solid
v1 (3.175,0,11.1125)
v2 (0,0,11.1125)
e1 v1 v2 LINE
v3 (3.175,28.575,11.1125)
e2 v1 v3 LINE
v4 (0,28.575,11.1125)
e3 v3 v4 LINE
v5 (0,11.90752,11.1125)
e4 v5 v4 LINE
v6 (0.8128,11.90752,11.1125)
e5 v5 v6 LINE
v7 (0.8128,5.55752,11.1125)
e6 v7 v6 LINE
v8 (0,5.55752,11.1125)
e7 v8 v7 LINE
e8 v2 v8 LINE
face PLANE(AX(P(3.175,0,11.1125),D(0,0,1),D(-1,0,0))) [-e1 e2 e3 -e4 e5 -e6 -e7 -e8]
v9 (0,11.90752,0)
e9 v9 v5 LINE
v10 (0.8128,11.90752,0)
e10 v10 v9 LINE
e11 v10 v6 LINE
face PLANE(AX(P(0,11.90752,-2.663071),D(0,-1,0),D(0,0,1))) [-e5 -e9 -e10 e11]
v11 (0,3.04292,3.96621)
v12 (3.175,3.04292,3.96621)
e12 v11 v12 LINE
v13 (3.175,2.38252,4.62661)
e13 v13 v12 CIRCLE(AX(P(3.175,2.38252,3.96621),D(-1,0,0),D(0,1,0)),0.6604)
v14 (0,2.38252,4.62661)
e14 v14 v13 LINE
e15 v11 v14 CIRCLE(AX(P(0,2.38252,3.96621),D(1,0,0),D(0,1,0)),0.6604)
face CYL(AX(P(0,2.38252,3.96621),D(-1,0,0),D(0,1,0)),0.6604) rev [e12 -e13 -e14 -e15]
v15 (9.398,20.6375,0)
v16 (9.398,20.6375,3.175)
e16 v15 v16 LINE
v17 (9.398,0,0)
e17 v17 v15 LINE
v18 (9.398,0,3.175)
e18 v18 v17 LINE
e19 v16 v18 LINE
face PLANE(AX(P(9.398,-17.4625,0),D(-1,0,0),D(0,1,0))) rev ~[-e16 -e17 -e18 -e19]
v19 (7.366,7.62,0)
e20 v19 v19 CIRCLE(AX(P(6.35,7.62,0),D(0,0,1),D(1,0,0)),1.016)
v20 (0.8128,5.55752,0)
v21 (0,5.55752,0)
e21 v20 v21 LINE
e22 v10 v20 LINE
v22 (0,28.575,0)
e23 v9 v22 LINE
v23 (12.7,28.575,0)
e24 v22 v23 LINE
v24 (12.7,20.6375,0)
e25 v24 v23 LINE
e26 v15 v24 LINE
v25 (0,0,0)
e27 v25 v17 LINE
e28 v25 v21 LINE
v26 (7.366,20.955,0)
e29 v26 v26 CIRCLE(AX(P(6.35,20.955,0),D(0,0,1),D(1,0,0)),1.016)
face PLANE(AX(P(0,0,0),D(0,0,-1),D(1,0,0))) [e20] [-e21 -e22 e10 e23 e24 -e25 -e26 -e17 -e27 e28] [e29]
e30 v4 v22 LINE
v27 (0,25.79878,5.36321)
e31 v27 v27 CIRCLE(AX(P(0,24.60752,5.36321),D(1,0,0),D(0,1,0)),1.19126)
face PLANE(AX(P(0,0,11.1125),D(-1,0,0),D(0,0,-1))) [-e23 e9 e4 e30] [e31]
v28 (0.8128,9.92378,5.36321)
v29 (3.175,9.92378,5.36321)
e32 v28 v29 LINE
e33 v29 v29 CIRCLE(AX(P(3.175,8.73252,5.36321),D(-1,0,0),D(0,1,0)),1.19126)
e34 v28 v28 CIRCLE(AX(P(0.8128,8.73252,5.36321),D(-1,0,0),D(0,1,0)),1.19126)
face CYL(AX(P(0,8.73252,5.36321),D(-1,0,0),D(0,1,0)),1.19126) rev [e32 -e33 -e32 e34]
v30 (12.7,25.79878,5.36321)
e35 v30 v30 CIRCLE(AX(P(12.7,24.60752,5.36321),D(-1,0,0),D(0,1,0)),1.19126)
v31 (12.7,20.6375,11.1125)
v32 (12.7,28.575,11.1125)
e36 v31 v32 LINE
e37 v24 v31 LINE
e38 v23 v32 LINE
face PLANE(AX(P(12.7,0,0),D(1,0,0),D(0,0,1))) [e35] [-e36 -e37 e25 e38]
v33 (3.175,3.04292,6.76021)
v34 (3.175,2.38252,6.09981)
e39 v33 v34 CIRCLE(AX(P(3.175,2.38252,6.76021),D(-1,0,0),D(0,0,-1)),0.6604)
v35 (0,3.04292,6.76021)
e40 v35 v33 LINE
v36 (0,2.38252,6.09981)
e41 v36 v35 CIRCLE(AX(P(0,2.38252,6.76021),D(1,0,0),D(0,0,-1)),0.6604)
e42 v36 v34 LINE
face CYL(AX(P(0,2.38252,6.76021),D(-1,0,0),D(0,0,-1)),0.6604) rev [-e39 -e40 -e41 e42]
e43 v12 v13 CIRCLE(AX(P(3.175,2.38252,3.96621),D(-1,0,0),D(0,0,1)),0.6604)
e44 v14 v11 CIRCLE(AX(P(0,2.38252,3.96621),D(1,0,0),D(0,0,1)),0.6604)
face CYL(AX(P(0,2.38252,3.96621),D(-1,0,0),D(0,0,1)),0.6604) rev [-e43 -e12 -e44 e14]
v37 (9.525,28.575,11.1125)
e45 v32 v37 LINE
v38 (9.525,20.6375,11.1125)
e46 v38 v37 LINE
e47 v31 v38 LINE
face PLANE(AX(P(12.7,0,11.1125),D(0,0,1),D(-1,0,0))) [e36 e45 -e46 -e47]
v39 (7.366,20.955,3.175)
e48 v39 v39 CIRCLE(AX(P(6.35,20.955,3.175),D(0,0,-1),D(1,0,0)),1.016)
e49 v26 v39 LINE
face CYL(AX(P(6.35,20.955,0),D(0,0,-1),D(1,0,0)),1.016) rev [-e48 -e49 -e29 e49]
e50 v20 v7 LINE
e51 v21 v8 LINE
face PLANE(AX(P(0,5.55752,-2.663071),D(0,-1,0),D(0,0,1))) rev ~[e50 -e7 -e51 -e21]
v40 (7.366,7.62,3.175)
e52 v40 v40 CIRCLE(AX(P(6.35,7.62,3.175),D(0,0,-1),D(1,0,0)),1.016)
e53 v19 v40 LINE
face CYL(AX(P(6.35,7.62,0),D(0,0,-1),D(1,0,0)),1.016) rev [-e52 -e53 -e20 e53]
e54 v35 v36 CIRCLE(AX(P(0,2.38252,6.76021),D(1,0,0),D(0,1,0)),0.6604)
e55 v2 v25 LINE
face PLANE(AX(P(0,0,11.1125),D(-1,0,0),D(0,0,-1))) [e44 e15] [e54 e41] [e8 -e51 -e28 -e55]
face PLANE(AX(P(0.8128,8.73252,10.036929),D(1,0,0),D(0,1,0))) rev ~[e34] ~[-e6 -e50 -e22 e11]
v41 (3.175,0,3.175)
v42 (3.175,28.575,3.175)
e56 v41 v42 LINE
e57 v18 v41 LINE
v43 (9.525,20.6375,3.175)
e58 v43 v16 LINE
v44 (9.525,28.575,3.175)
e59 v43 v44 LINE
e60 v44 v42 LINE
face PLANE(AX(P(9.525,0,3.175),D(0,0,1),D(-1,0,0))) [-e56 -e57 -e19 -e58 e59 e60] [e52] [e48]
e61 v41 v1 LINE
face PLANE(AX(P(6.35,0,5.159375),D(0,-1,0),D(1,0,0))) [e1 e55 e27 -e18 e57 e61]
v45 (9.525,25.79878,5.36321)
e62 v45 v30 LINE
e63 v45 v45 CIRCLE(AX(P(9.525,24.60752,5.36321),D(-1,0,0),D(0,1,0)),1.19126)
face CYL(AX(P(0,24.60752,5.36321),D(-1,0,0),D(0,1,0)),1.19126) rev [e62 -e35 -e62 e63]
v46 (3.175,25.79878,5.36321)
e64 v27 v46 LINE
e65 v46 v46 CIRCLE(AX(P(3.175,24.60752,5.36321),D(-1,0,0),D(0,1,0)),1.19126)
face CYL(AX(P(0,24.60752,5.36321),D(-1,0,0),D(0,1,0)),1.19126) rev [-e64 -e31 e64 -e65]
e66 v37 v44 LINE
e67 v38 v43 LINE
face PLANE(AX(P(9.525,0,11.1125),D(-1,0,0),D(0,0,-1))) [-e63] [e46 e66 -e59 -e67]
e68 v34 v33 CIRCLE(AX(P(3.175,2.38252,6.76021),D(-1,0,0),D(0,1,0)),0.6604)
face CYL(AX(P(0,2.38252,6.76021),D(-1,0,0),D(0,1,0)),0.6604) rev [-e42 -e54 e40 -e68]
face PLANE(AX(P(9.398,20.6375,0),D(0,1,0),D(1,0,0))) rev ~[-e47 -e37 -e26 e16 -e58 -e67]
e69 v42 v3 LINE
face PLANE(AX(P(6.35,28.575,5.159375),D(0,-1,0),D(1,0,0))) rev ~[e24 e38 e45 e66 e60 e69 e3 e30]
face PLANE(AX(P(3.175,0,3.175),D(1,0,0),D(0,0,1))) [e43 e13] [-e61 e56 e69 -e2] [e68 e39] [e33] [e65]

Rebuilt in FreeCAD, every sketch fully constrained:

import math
import FreeCAD as App
import Part
import Sketcher
from FreeCAD import Vector
Q = App.Units.Quantity

doc = App.newDocument("Part")
params = doc.addObject("Spreadsheet::Sheet", "Params")
for row, (alias, value) in enumerate([
    ("sketch1_width", "0.5 in"),
    ("sketch1_width2", "0.25 in"),
    ("sketch1_height", "0.4375 in"),
    ("sketch1_height2", "0.3125 in"),
    ("pad1_length", "1.125 in"),
    ("sketch2_width", "0.5 in"),
    ("sketch2_height", "1.5 in"),
    ("sketch3_radius", "0.026 in"),
    ("sketch4_height", "1 in"),
    ("sketch4_width", "0.25 in"),
    ("pocket3_length", "0.032 in"),
    ("sketch5_diameter", "0.08 in"),
], start=1):
    params.set(f"A{row}", alias)
    params.set(f"B{row}", "=" + value)
    params.setAlias(f"B{row}", alias)

body = doc.addObject("PartDesign::Body", "Body")

sketch1 = doc.addObject("Sketcher::SketchObject", "Sketch")
body.addObject(sketch1)
sketch1.AttachmentSupport = (doc.XZ_Plane, [""])
sketch1.MapMode = "FlatFace"
sketch1.addGeometry([
    Part.LineSegment(Vector(0, 11.1, 0), Vector(0, 0, 0)),
    Part.LineSegment(Vector(0, 0, 0), Vector(12.7, 0, 0)),
    Part.LineSegment(Vector(12.7, 0, 0), Vector(12.7, 11.1, 0)),
    Part.LineSegment(Vector(12.7, 11.1, 0), Vector(9.5, 11.1, 0)),
    Part.LineSegment(Vector(9.5, 11.1, 0), Vector(9.5, 3.2, 0)),
    Part.LineSegment(Vector(9.5, 3.2, 0), Vector(3.2, 3.2, 0)),
    Part.LineSegment(Vector(3.2, 3.2, 0), Vector(3.2, 11.1, 0)),
    Part.LineSegment(Vector(3.2, 11.1, 0), Vector(0, 11.1, 0)),
], False)
sketch1.addConstraint([
    Sketcher.Constraint("Coincident", 0, 2, 1, 1),
    Sketcher.Constraint("Coincident", 1, 2, 2, 1),
    Sketcher.Constraint("Coincident", 2, 2, 3, 1),
    Sketcher.Constraint("Coincident", 3, 2, 4, 1),
    Sketcher.Constraint("Coincident", 4, 2, 5, 1),
    Sketcher.Constraint("Coincident", 5, 2, 6, 1),
    Sketcher.Constraint("Coincident", 6, 2, 7, 1),
    Sketcher.Constraint("Coincident", 7, 2, 0, 1),
    Sketcher.Constraint("Vertical", 0),
    Sketcher.Constraint("Horizontal", 1),
    Sketcher.Constraint("Vertical", 2),
    Sketcher.Constraint("Horizontal", 3),
    Sketcher.Constraint("Vertical", 4),
    Sketcher.Constraint("Horizontal", 5),
    Sketcher.Constraint("Vertical", 6),
    Sketcher.Constraint("Horizontal", 7),
    Sketcher.Constraint("Coincident", 0, 2, -1, 1),
    Sketcher.Constraint("Horizontal", 3, 2, 6, 2),
    Sketcher.Constraint("Equal", 3, 7),
    Sketcher.Constraint("DistanceX", 1, 1, 1, 2, Q("0.5 in")),
    Sketcher.Constraint("DistanceX", 5, 2, 5, 1, Q("0.25 in")),
    Sketcher.Constraint("DistanceY", 0, 2, 0, 1, Q("0.4375 in")),
    Sketcher.Constraint("DistanceY", 4, 2, 4, 1, Q("0.3125 in")),
])
sketch1.setExpression("Constraints[19]", "Params.sketch1_width")
sketch1.setExpression("Constraints[20]", "Params.sketch1_width2")
sketch1.setExpression("Constraints[21]", "Params.sketch1_height")
sketch1.setExpression("Constraints[22]", "Params.sketch1_height2")
pad1 = doc.addObject("PartDesign::Pad", "Pad")
body.addObject(pad1)
pad1.Profile = sketch1
pad1.setExpression("Length", "Params.pad1_length")
pad1.Reversed = True

sketch2 = doc.addObject("Sketcher::SketchObject", "Sketch001")
body.addObject(sketch2)
sketch2.AttachmentSupport = (doc.XY_Plane, [""])
sketch2.MapMode = "FlatFace"
sketch2.addGeometry([
    Part.LineSegment(Vector(9, 21, 0), Vector(9, -17, 0)),
    Part.LineSegment(Vector(9, -17, 0), Vector(22, -17, 0)),
    Part.LineSegment(Vector(22, -17, 0), Vector(22, 21, 0)),
    Part.LineSegment(Vector(22, 21, 0), Vector(9, 21, 0)),
], False)
sketch2.addConstraint([
    Sketcher.Constraint("Coincident", 0, 2, 1, 1),
    Sketcher.Constraint("Coincident", 1, 2, 2, 1),
    Sketcher.Constraint("Coincident", 2, 2, 3, 1),
    Sketcher.Constraint("Coincident", 3, 2, 0, 1),
    Sketcher.Constraint("Vertical", 0),
    Sketcher.Constraint("Horizontal", 1),
    Sketcher.Constraint("Vertical", 2),
    Sketcher.Constraint("Horizontal", 3),
    Sketcher.Constraint("DistanceX", 1, 1, 1, 2, Q("0.5 in")),
    Sketcher.Constraint("DistanceY", 0, 2, 0, 1, Q("1.5 in")),
    Sketcher.Constraint("DistanceX", -1, 1, 0, 2, Q("0.37 in")),
    Sketcher.Constraint("DistanceY", 0, 2, -1, 1, Q("0.6875 in")),
])
sketch2.setExpression("Constraints[8]", "Params.sketch2_width")
sketch2.setExpression("Constraints[9]", "Params.sketch2_height")
pocket1 = doc.addObject("PartDesign::Pocket", "Pocket")
body.addObject(pocket1)
pocket1.Profile = sketch2
pocket1.Type = "ThroughAll"
pocket1.Midplane = True

sketch3 = doc.addObject("Sketcher::SketchObject", "Sketch002")
body.addObject(sketch3)
sketch3.AttachmentSupport = (doc.YZ_Plane, [""])
sketch3.MapMode = "FlatFace"
sketch3.addGeometry([
    Part.Circle(Vector(8.7, 5.4, 0), Vector(0, 0, 1), 1.2),
    Part.Circle(Vector(24.6, 5.4, 0), Vector(0, 0, 1), 1.2),
    Part.ArcOfCircle(Part.Circle(Vector(2.4, 4, 0), Vector(0, 0, 1), 0.7), math.radians(90), math.radians(360)),
    Part.ArcOfCircle(Part.Circle(Vector(2.4, 4, 0), Vector(0, 0, 1), 0.7), math.radians(0), math.radians(90)),
    Part.ArcOfCircle(Part.Circle(Vector(2.4, 6.8, 0), Vector(0, 0, 1), 0.7), math.radians(0), math.radians(270)),
    Part.ArcOfCircle(Part.Circle(Vector(2.4, 6.8, 0), Vector(0, 0, 1), 0.7), math.radians(-90), math.radians(0)),
], False)
sketch3.addConstraint([
    Sketcher.Constraint("Tangent", 2, 1, 3, 2),
    Sketcher.Constraint("Coincident", 3, 1, 2, 2),
    Sketcher.Constraint("Tangent", 4, 1, 5, 2),
    Sketcher.Constraint("Coincident", 5, 1, 4, 2),
    Sketcher.Constraint("Equal", 0, 1),
    Sketcher.Constraint("Equal", 3, 4),
    Sketcher.Constraint("Horizontal", 0, 3, 1, 3),
    Sketcher.Constraint("Horizontal", 2, 3, 3, 1),
    Sketcher.Constraint("Horizontal", 5, 3, 4, 1),
    Sketcher.Constraint("Vertical", 3, 3, 4, 3),
    Sketcher.Constraint("Vertical", 5, 3, 2, 1),
    Sketcher.Constraint("Vertical", 2, 1, 5, 1),
    Sketcher.Constraint("Radius", 2, Q("0.026 in")),
    Sketcher.Constraint("Diameter", 0, Q("0.0938 in")),
    Sketcher.Constraint("DistanceX", 2, 3, 0, 3, Q("0.25 in")),
    Sketcher.Constraint("DistanceY", 2, 3, 4, 3, Q("0.11 in")),
    Sketcher.Constraint("DistanceX", 0, 3, 1, 3, Q("0.625 in")),
    Sketcher.Constraint("DistanceY", 2, 3, 0, 3, Q("0.055 in")),
    Sketcher.Constraint("DistanceX", -1, 1, 0, 3, Q("0.3438 in")),
    Sketcher.Constraint("DistanceY", -1, 1, 0, 3, 5.36321),
])
sketch3.setExpression("Constraints[12]", "Params.sketch3_radius")
pocket2 = doc.addObject("PartDesign::Pocket", "Pocket001")
body.addObject(pocket2)
pocket2.Profile = sketch3
pocket2.Type = "ThroughAll"
pocket2.Midplane = True

sketch4 = doc.addObject("Sketcher::SketchObject", "Sketch003")
body.addObject(sketch4)
sketch4.AttachmentSupport = (doc.YZ_Plane, [""])
sketch4.MapMode = "FlatFace"
sketch4.addGeometry([
    Part.LineSegment(Vector(6, 23, 0), Vector(6, -3, 0)),
    Part.LineSegment(Vector(6, -3, 0), Vector(12, -3, 0)),
    Part.LineSegment(Vector(12, -3, 0), Vector(12, 23, 0)),
    Part.LineSegment(Vector(12, 23, 0), Vector(6, 23, 0)),
], False)
sketch4.addConstraint([
    Sketcher.Constraint("Coincident", 0, 2, 1, 1),
    Sketcher.Constraint("Coincident", 1, 2, 2, 1),
    Sketcher.Constraint("Coincident", 2, 2, 3, 1),
    Sketcher.Constraint("Coincident", 3, 2, 0, 1),
    Sketcher.Constraint("Vertical", 0),
    Sketcher.Constraint("Horizontal", 1),
    Sketcher.Constraint("Vertical", 2),
    Sketcher.Constraint("Horizontal", 3),
    Sketcher.Constraint("DistanceY", 0, 2, 0, 1, Q("1 in")),
    Sketcher.Constraint("DistanceX", 1, 1, 1, 2, Q("0.25 in")),
    Sketcher.Constraint("DistanceX", -1, 1, 0, 2, Q("0.2188 in")),
    Sketcher.Constraint("DistanceY", 0, 2, -1, 1, 2.663071),
])
sketch4.setExpression("Constraints[8]", "Params.sketch4_height")
sketch4.setExpression("Constraints[9]", "Params.sketch4_width")
pocket3 = doc.addObject("PartDesign::Pocket", "Pocket002")
body.addObject(pocket3)
pocket3.Profile = sketch4
pocket3.setExpression("Length", "Params.pocket3_length")
pocket3.Reversed = True

sketch5 = doc.addObject("Sketcher::SketchObject", "Sketch004")
body.addObject(sketch5)
sketch5.AttachmentSupport = (doc.XY_Plane, [""])
sketch5.MapMode = "FlatFace"
sketch5.addGeometry([
    Part.Circle(Vector(6.3, 21, 0), Vector(0, 0, 1), 1),
    Part.Circle(Vector(6.3, 7.6, 0), Vector(0, 0, 1), 1),
], False)
sketch5.addConstraint([
    Sketcher.Constraint("Equal", 0, 1),
    Sketcher.Constraint("Vertical", 0, 3, 1, 3),
    Sketcher.Constraint("Diameter", 0, Q("0.08 in")),
    Sketcher.Constraint("DistanceY", -1, 1, 1, 3, Q("0.3 in")),
    Sketcher.Constraint("DistanceX", -1, 1, 0, 3, Q("0.25 in")),
    Sketcher.Constraint("DistanceY", -1, 1, 0, 3, Q("0.825 in")),
])
sketch5.setExpression("Constraints[2]", "Params.sketch5_diameter")
pocket4 = doc.addObject("PartDesign::Pocket", "Pocket003")
body.addObject(pocket4)
pocket4.Profile = sketch5
pocket4.Type = "ThroughAll"
pocket4.Midplane = True

doc.recompute()
